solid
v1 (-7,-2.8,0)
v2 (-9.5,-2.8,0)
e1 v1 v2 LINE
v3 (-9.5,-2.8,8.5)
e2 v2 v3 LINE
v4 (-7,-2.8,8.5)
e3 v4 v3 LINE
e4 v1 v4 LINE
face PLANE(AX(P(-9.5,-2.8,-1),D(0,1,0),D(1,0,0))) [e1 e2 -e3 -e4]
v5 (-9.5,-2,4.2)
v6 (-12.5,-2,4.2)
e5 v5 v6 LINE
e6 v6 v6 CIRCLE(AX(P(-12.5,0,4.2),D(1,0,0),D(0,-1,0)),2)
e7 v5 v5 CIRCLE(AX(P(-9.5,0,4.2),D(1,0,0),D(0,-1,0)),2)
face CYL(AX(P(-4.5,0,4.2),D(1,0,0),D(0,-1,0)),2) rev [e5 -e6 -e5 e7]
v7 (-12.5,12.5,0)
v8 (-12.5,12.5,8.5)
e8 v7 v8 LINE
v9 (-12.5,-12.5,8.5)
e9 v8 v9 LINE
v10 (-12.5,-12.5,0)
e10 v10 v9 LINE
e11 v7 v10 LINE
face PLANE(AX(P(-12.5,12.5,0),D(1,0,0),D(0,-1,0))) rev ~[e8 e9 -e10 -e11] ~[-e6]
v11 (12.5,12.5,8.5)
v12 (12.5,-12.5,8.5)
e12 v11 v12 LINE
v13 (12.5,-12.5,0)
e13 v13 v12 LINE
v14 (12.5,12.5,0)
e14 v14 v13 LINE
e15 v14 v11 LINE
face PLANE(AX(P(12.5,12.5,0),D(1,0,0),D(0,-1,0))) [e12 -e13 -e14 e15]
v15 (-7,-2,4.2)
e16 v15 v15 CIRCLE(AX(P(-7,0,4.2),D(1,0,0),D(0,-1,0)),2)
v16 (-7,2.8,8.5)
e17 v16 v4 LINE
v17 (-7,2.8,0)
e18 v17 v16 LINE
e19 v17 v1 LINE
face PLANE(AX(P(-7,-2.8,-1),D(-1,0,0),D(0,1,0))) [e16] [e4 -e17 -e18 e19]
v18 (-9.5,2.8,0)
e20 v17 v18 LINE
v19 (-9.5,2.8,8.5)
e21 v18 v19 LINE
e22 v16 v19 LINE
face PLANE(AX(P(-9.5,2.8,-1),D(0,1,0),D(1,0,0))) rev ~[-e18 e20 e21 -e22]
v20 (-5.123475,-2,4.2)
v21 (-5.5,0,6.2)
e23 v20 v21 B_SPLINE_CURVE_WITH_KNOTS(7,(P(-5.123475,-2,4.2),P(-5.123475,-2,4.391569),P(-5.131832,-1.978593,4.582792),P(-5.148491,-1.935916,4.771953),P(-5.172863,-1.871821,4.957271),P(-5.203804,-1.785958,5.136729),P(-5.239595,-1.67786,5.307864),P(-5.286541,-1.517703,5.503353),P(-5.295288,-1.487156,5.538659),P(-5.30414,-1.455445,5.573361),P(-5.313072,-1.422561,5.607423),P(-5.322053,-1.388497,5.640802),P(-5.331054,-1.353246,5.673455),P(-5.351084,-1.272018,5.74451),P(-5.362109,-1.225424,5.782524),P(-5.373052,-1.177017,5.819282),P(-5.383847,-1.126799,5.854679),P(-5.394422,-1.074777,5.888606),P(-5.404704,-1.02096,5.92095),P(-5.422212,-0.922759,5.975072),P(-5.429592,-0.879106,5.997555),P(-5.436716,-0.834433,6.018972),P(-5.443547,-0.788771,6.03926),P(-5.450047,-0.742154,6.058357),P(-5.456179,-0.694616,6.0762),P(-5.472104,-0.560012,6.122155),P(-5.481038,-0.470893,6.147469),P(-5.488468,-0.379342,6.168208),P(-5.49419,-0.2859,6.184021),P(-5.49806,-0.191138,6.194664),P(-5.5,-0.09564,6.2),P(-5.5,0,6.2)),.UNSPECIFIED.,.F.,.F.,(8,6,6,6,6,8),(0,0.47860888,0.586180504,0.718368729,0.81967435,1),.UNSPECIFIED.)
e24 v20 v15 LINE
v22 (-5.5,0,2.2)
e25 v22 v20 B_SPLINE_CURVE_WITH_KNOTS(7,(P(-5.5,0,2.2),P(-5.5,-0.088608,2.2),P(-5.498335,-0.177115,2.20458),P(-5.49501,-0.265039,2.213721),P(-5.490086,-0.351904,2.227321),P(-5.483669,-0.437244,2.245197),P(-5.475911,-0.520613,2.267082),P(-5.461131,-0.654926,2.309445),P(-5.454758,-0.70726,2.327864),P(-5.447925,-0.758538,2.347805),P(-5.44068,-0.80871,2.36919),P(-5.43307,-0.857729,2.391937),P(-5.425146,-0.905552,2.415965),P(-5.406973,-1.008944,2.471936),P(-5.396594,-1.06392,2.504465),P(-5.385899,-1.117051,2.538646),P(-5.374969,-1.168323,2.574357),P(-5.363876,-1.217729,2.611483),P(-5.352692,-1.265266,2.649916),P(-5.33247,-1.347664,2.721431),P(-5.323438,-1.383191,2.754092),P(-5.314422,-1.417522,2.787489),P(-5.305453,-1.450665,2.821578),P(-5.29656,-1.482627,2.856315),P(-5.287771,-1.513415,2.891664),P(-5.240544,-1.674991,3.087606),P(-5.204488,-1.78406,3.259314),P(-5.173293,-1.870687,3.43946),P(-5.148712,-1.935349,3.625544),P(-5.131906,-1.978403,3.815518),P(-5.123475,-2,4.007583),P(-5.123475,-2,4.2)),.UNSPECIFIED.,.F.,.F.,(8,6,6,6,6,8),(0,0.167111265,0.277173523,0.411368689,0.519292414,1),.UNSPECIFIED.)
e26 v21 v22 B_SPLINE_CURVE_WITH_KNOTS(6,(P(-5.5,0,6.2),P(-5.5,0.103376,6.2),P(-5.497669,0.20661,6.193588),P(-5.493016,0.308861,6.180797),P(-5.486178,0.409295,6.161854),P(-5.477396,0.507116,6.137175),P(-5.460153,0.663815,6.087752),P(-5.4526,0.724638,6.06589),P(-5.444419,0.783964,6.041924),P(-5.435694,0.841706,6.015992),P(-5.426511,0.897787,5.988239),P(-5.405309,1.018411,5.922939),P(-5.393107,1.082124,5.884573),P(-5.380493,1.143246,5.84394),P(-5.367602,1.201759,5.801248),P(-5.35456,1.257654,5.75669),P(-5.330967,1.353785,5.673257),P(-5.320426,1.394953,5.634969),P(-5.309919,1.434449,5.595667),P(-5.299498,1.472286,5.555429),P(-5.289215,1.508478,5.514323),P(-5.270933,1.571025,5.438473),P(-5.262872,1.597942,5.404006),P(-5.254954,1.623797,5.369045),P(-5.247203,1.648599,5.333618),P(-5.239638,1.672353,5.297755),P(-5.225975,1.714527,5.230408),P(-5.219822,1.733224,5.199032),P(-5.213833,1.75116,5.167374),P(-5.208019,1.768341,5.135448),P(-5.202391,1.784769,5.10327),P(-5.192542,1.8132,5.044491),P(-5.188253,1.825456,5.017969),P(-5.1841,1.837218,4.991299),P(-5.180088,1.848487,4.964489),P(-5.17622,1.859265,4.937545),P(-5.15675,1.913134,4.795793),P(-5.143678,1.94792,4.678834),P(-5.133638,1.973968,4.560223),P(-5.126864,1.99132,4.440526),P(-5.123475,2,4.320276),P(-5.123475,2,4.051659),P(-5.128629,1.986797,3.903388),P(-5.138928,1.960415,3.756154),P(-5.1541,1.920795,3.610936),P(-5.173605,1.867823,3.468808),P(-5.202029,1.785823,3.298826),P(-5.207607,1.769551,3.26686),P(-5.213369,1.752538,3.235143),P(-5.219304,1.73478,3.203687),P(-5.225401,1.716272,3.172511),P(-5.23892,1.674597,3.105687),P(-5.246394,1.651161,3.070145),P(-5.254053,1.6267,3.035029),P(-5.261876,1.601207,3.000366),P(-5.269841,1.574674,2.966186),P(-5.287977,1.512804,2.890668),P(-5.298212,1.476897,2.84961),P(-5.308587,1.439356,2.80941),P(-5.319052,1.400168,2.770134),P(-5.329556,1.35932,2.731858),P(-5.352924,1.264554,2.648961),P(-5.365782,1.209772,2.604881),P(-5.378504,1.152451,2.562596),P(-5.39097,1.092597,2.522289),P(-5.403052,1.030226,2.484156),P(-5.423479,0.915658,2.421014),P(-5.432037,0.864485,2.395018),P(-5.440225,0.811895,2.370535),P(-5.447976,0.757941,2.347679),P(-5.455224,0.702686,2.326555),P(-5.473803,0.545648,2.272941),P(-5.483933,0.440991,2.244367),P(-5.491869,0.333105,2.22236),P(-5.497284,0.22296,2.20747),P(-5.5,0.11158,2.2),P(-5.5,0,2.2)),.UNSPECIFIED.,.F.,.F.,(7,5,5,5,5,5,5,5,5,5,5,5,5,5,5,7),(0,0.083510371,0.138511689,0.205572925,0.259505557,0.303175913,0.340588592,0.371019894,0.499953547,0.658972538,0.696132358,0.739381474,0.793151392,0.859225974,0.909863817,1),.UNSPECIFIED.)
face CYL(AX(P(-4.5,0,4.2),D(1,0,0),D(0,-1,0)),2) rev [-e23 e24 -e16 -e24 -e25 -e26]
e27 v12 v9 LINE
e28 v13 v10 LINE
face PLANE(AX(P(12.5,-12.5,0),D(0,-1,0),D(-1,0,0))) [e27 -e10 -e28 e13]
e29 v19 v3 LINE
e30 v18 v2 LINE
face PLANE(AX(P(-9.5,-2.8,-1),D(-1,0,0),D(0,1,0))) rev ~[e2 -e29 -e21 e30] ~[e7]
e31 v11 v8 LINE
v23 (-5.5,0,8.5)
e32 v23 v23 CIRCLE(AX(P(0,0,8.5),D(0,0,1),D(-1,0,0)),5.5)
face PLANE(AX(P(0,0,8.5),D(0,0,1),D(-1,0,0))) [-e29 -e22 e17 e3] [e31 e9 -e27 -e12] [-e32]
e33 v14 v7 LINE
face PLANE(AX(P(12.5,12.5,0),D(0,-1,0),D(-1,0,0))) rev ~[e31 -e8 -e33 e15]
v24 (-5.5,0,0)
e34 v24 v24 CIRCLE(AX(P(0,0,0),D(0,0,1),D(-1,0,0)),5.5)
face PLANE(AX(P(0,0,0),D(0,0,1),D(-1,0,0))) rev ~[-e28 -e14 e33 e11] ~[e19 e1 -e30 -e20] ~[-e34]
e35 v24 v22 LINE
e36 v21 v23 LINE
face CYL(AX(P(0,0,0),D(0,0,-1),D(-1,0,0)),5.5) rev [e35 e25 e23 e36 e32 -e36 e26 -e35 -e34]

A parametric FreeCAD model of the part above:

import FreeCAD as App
import Part
import Sketcher
from FreeCAD import Vector
Q = App.Units.Quantity

doc = App.newDocument("Part")
body = doc.addObject("PartDesign::Body", "Body")

sketch1 = body.newObject("Sketcher::SketchObject", "Sketch")
sketch1.AttachmentSupport = (doc.getObject("XY_Plane"), [""])
sketch1.MapMode = "FlatFace"
sketch1.addGeometry([
    Part.LineSegment(Vector(-9.5, 2.8, 0), Vector(-9.5, -2.8, 0)),
    Part.LineSegment(Vector(-9.5, -2.8, 0), Vector(-7, -2.8, 0)),
    Part.LineSegment(Vector(-7, -2.8, 0), Vector(-7, 2.8, 0)),
    Part.LineSegment(Vector(-7, 2.8, 0), Vector(-9.5, 2.8, 0)),
], False)
sketch1.addConstraint([
    Sketcher.Constraint("Coincident", 0, 2, 1, 1),
    Sketcher.Constraint("Coincident", 1, 2, 2, 1),
    Sketcher.Constraint("Coincident", 2, 2, 3, 1),
    Sketcher.Constraint("Coincident", 3, 2, 0, 1),
    Sketcher.Constraint("Vertical", 0),
    Sketcher.Constraint("Horizontal", 1),
    Sketcher.Constraint("Vertical", 2),
    Sketcher.Constraint("Horizontal", 3),
    Sketcher.Constraint("DistanceX", 1, 1, 1, 2, Q("2.5 mm")),
    Sketcher.Constraint("DistanceY", 0, 2, 0, 1, Q("5.6 mm")),
    Sketcher.Constraint("DistanceX", 1, 2, -1, 1, Q("7 mm")),
    Sketcher.Constraint("DistanceY", 0, 2, -1, 1, Q("2.8 mm")),
])
pad1 = body.newObject("PartDesign::Pad", "Pad")
pad1.Profile = sketch1
pad1.Length = 10
body2 = doc.addObject("PartDesign::Body", "Body001")
doc.recompute()

body.Placement = App.Placement(Vector(0, 0, -1), App.Rotation(Vector(0, 0, 1), 0))
boolean = body2.newObject("PartDesign::Boolean", "Boolean")
boolean.Type = "Fuse"
boolean.addObjects([body])
body3 = doc.addObject("PartDesign::Body", "Body002")

sketch2 = body3.newObject("Sketcher::SketchObject", "Sketch001")
sketch2.AttachmentSupport = (doc.getObject("YZ_Plane002"), [""])
sketch2.MapMode = "FlatFace"
sketch2.AttachmentOffset = App.Placement(Vector(0, 0, 12.5), App.Rotation())
sketch2.addGeometry(Part.Circle(Vector(0, 4.2, 0), Vector(0, 0, 1), 2), False)
sketch2.addConstraint([
    Sketcher.Constraint("PointOnObject", 0, 3, -2),
    Sketcher.Constraint("Diameter", 0, Q("4 mm")),
    Sketcher.Constraint("DistanceY", -1, 1, 0, 3, Q("4.2 mm")),
])
pad2 = body3.newObject("PartDesign::Pad", "Pad001")
pad2.Profile = sketch2
pad2.Length = 10
body4 = doc.addObject("PartDesign::Body", "Body003")
doc.recompute()

body3.Placement = App.Placement(Vector(-8, 0, 0), App.Rotation(Vector(0, 0, 1), 0))
boolean2 = body4.newObject("PartDesign::Boolean", "Boolean001")
boolean2.Type = "Fuse"
boolean2.addObjects([body3])
body5 = doc.addObject("PartDesign::Body", "Body004")

sketch3 = body5.newObject("Sketcher::SketchObject", "Sketch002")
sketch3.AttachmentSupport = (doc.getObject("XY_Plane004"), [""])
sketch3.MapMode = "FlatFace"
sketch3.addGeometry([
    Part.LineSegment(Vector(-12.5, 12.5, 0), Vector(-12.5, -12.5, 0)),
    Part.LineSegment(Vector(-12.5, -12.5, 0), Vector(12.5, -12.5, 0)),
    Part.LineSegment(Vector(12.5, -12.5, 0), Vector(12.5, 12.5, 0)),
    Part.LineSegment(Vector(12.5, 12.5, 0), Vector(-12.5, 12.5, 0)),
    Part.Circle(Vector(0, 0, 0), Vector(0, 0, 1), 5.5),
], False)
sketch3.addConstraint([
    Sketcher.Constraint("Coincident", 0, 2, 1, 1),
    Sketcher.Constraint("Coincident", 1, 2, 2, 1),
    Sketcher.Constraint("Coincident", 2, 2, 3, 1),
    Sketcher.Constraint("Coincident", 3, 2, 0, 1),
    Sketcher.Constraint("Vertical", 0),
    Sketcher.Constraint("Horizontal", 1),
    Sketcher.Constraint("Vertical", 2),
    Sketcher.Constraint("Horizontal", 3),
    Sketcher.Constraint("Coincident", 4, 3, -1, 1),
    Sketcher.Constraint("Symmetric", 0, 2, 2, 2, -1, 1),
    Sketcher.Constraint("Equal", 3, 0),
    Sketcher.Constraint("Diameter", 4, Q("11 mm")),
    Sketcher.Constraint("DistanceX", 1, 1, 1, 2, Q("25 mm")),
])
pad3 = body5.newObject("PartDesign::Pad", "Pad002")
pad3.Profile = sketch3
pad3.Length = 8.5
doc.recompute()

boolean3 = body5.newObject("PartDesign::Boolean", "Boolean002")
boolean3.Type = "Cut"
boolean3.addObjects([body4])
body6 = doc.addObject("PartDesign::Body", "Body005")
doc.recompute()

body5.Placement = App.Placement(Vector(0, 0, 0), App.Rotation(Vector(0, 0, 1), 180))
boolean4 = body6.newObject("PartDesign::Boolean", "Boolean003")
boolean4.Type = "Fuse"
boolean4.addObjects([body5])
doc.recompute()

boolean5 = body6.newObject("PartDesign::Boolean", "Boolean004")
boolean5.Type = "Cut"
boolean5.addObjects([body2])

doc.recompute()
